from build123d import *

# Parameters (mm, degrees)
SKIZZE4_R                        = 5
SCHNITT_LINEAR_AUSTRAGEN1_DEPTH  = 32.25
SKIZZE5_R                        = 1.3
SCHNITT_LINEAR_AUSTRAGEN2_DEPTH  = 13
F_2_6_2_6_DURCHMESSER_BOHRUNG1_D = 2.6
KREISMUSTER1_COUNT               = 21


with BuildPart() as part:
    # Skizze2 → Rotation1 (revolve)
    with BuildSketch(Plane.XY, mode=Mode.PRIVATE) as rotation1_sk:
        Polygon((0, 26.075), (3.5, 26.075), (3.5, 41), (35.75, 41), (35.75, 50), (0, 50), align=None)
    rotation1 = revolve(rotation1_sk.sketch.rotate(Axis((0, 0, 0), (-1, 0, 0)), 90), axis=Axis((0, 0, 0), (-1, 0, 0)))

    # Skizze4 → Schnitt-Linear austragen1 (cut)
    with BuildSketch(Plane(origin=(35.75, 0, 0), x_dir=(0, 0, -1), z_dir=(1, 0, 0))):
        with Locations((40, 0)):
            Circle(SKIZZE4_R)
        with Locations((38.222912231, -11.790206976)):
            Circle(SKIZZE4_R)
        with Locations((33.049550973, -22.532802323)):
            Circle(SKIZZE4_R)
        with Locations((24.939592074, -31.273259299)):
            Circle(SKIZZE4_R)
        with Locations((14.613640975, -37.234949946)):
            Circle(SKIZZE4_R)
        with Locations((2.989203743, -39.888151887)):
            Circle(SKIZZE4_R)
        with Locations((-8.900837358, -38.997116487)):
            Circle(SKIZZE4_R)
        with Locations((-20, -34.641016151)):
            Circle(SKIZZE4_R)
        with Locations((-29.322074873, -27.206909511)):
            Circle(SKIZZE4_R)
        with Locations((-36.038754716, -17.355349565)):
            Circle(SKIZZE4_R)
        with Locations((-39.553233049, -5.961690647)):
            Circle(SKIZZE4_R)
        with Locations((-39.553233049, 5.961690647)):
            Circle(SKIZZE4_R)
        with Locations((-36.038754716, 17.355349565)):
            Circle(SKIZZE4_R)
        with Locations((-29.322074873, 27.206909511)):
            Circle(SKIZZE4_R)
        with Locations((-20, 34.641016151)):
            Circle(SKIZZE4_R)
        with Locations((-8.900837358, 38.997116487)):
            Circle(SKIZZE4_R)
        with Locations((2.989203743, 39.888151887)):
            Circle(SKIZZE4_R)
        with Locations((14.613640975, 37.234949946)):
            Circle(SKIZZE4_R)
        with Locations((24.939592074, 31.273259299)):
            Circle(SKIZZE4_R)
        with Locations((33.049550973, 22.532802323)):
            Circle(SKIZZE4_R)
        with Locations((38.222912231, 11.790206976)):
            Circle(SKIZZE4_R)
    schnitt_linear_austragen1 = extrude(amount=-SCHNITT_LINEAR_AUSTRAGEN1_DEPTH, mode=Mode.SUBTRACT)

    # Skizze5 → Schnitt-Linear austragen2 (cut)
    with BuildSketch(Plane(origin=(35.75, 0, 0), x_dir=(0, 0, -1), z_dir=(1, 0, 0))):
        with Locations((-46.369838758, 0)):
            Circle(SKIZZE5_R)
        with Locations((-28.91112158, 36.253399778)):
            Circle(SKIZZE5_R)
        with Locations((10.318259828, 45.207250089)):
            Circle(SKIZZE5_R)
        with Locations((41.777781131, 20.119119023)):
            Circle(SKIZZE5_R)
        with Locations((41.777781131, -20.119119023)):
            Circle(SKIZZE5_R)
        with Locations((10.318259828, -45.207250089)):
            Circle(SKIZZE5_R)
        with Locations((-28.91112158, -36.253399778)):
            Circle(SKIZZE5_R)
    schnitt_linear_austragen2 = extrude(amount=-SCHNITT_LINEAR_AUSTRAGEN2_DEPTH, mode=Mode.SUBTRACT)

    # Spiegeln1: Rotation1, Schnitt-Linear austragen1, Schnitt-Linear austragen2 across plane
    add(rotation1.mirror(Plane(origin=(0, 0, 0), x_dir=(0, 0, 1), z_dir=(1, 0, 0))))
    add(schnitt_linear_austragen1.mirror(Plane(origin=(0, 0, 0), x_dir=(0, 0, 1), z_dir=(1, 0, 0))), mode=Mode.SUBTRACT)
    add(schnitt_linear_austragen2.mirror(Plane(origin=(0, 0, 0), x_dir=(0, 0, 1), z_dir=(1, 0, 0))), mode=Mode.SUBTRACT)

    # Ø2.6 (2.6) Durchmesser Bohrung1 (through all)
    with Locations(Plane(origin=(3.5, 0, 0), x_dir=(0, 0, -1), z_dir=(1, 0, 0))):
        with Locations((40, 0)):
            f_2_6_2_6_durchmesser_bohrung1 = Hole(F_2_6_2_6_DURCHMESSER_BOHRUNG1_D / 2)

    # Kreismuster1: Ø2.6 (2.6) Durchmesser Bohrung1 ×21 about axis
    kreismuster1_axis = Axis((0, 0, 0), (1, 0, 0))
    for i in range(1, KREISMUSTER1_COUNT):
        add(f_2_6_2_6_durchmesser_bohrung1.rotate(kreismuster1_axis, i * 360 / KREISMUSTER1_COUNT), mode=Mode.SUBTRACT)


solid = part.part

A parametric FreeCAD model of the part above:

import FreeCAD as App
import Part
import Sketcher
Q = App.Units.Quantity

doc = App.newDocument("Part")
body = doc.addObject("PartDesign::Body", "Body")

# Sketch on XY plane
sketch1 = body.newObject("Sketcher::SketchObject", "Sketch")
sketch1.AttachmentSupport = (doc.getObject("XY_Plane"), [""])
sketch1.MapMode = "FlatFace"
sketch1.addGeometry(Part.LineSegment(App.Vector(0, 26.1, 0), App.Vector(3.5, 26.1, 0)), False)
sketch1.addGeometry(Part.LineSegment(App.Vector(3.5, 26.1, 0), App.Vector(3.5, 41, 0)), False)
sketch1.addGeometry(Part.LineSegment(App.Vector(3.5, 41, 0), App.Vector(35.8, 41, 0)), False)
sketch1.addGeometry(Part.LineSegment(App.Vector(35.8, 41, 0), App.Vector(35.8, 50, 0)), False)
sketch1.addGeometry(Part.LineSegment(App.Vector(35.8, 50, 0), App.Vector(0, 50, 0)), False)
sketch1.addGeometry(Part.LineSegment(App.Vector(0, 50, 0), App.Vector(0, 26.1, 0)), False)
sketch1.addConstraint(Sketcher.Constraint("Coincident", 0, 2, 1, 1))
sketch1.addConstraint(Sketcher.Constraint("Coincident", 1, 2, 2, 1))
sketch1.addConstraint(Sketcher.Constraint("Coincident", 2, 2, 3, 1))
sketch1.addConstraint(Sketcher.Constraint("Coincident", 3, 2, 4, 1))
sketch1.addConstraint(Sketcher.Constraint("Coincident", 4, 2, 5, 1))
sketch1.addConstraint(Sketcher.Constraint("Coincident", 5, 2, 0, 1))
sketch1.addConstraint(Sketcher.Constraint("Horizontal", 0))
sketch1.addConstraint(Sketcher.Constraint("Vertical", 1))
sketch1.addConstraint(Sketcher.Constraint("Horizontal", 2))
sketch1.addConstraint(Sketcher.Constraint("Vertical", 3))
sketch1.addConstraint(Sketcher.Constraint("Horizontal", 4))
sketch1.addConstraint(Sketcher.Constraint("Vertical", 5))
sketch1.addConstraint(Sketcher.Constraint("PointOnObject", 4, 2, -2))
sketch1.addConstraint(Sketcher.Constraint("DistanceY", 3, 1, 3, 2, Q("9 mm")))
sketch1.addConstraint(Sketcher.Constraint("DistanceX", 0, 1, 0, 2, Q("3.5 mm")))
sketch1.addConstraint(Sketcher.Constraint("DistanceY", -1, 1, 1, 2, Q("41 mm")))
sketch1.addConstraint(Sketcher.Constraint("DistanceX", 2, 1, 2, 2, Q("32.25 mm")))
sketch1.addConstraint(Sketcher.Constraint("DistanceY", 1, 1, 1, 2, Q("14.925 mm")))
revolution = body.newObject("PartDesign::Revolution", "Revolution")
revolution.Profile = sketch1
revolution.ReferenceAxis = (sketch1, ["H_Axis"])
revolution.Angle = 360

# Sketch on YZ plane
sketch2 = body.newObject("Sketcher::SketchObject", "Sketch001")
sketch2.AttachmentSupport = (doc.getObject("YZ_Plane"), [""])
sketch2.MapMode = "FlatFace"
sketch2.AttachmentOffset = App.Placement(App.Vector(0, 0, 35.75), App.Rotation())
sketch2.addGeometry(Part.Circle(App.Vector(0, -40, 0), App.Vector(0, 0, 1), 5), False)
sketch2.addGeometry(Part.Circle(App.Vector(-12, -38, 0), App.Vector(0, 0, 1), 5), False)
sketch2.addGeometry(Part.Circle(App.Vector(-23, -33, 0), App.Vector(0, 0, 1), 5), False)
sketch2.addGeometry(Part.Circle(App.Vector(-31, -25, 0), App.Vector(0, 0, 1), 5), False)
sketch2.addGeometry(Part.Circle(App.Vector(-37, -15, 0), App.Vector(0, 0, 1), 5), False)
sketch2.addGeometry(Part.Circle(App.Vector(-40, -3, 0), App.Vector(0, 0, 1), 5), False)
sketch2.addGeometry(Part.Circle(App.Vector(-39, 9, 0), App.Vector(0, 0, 1), 5), False)
sketch2.addGeometry(Part.Circle(App.Vector(-35, 20, 0), App.Vector(0, 0, 1), 5), False)
sketch2.addGeometry(Part.Circle(App.Vector(-27, 29, 0), App.Vector(0, 0, 1), 5), False)
sketch2.addGeometry(Part.Circle(App.Vector(-17, 36, 0), App.Vector(0, 0, 1), 5), False)
sketch2.addGeometry(Part.Circle(App.Vector(-6, 40, 0), App.Vector(0, 0, 1), 5), False)
sketch2.addGeometry(Part.Circle(App.Vector(6, 40, 0), App.Vector(0, 0, 1), 5), False)
sketch2.addGeometry(Part.Circle(App.Vector(17, 36, 0), App.Vector(0, 0, 1), 5), False)
sketch2.addGeometry(Part.Circle(App.Vector(27, 29, 0), App.Vector(0, 0, 1), 5), False)
sketch2.addGeometry(Part.Circle(App.Vector(35, 20, 0), App.Vector(0, 0, 1), 5), False)
sketch2.addGeometry(Part.Circle(App.Vector(39, 9, 0), App.Vector(0, 0, 1), 5), False)
sketch2.addGeometry(Part.Circle(App.Vector(40, -3, 0), App.Vector(0, 0, 1), 5), False)
sketch2.addGeometry(Part.Circle(App.Vector(37, -15, 0), App.Vector(0, 0, 1), 5), False)
sketch2.addGeometry(Part.Circle(App.Vector(31, -25, 0), App.Vector(0, 0, 1), 5), False)
sketch2.addGeometry(Part.Circle(App.Vector(23, -33, 0), App.Vector(0, 0, 1), 5), False)
sketch2.addGeometry(Part.Circle(App.Vector(12, -38, 0), App.Vector(0, 0, 1), 5), False)
sketch2.addConstraint(Sketcher.Constraint("Equal", 0, 1))
sketch2.addConstraint(Sketcher.Constraint("Equal", 1, 2))
sketch2.addConstraint(Sketcher.Constraint("Equal", 2, 3))
sketch2.addConstraint(Sketcher.Constraint("Equal", 3, 4))
sketch2.addConstraint(Sketcher.Constraint("Equal", 4, 5))
sketch2.addConstraint(Sketcher.Constraint("Equal", 5, 6))
sketch2.addConstraint(Sketcher.Constraint("Equal", 6, 7))
sketch2.addConstraint(Sketcher.Constraint("Equal", 7, 8))
sketch2.addConstraint(Sketcher.Constraint("Equal", 8, 9))
sketch2.addConstraint(Sketcher.Constraint("Equal", 9, 10))
sketch2.addConstraint(Sketcher.Constraint("Equal", 10, 11))
sketch2.addConstraint(Sketcher.Constraint("Equal", 11, 12))
sketch2.addConstraint(Sketcher.Constraint("Equal", 12, 13))
sketch2.addConstraint(Sketcher.Constraint("Equal", 13, 14))
sketch2.addConstraint(Sketcher.Constraint("Equal", 14, 15))
sketch2.addConstraint(Sketcher.Constraint("Equal", 15, 16))
sketch2.addConstraint(Sketcher.Constraint("Equal", 16, 17))
sketch2.addConstraint(Sketcher.Constraint("Equal", 17, 18))
sketch2.addConstraint(Sketcher.Constraint("Equal", 18, 19))
sketch2.addConstraint(Sketcher.Constraint("Equal", 19, 20))
sketch2.addConstraint(Sketcher.Constraint("Symmetric", 10, 3, 11, 3, -2))
sketch2.addConstraint(Sketcher.Constraint("Symmetric", 9, 3, 12, 3, -2))
sketch2.addConstraint(Sketcher.Constraint("Symmetric", 8, 3, 13, 3, -2))
sketch2.addConstraint(Sketcher.Constraint("Symmetric", 7, 3, 14, 3, -2))
sketch2.addConstraint(Sketcher.Constraint("Symmetric", 6, 3, 15, 3, -2))
sketch2.addConstraint(Sketcher.Constraint("Symmetric", 5, 3, 16, 3, -2))
sketch2.addConstraint(Sketcher.Constraint("Symmetric", 4, 3, 17, 3, -2))
sketch2.addConstraint(Sketcher.Constraint("Symmetric", 3, 3, 18, 3, -2))
sketch2.addConstraint(Sketcher.Constraint("Symmetric", 2, 3, 19, 3, -2))
sketch2.addConstraint(Sketcher.Constraint("Symmetric", 1, 3, 20, 3, -2))
sketch2.addConstraint(Sketcher.Constraint("PointOnObject", 0, 3, -2))
sketch2.addConstraint(Sketcher.Constraint("Diameter", 0, Q("10 mm")))
sketch2.addConstraint(Sketcher.Constraint("DistanceY", 0, 3, -1, 1, Q("40 mm")))
sketch2.addConstraint(Sketcher.Constraint("DistanceY", -1, 1, 7, 3, Q("20 mm")))
sketch2.addConstraint(Sketcher.Constraint("DistanceX", 5, 3, 4, 3, Q("2.653202 mm")))
sketch2.addConstraint(Sketcher.Constraint("DistanceX", 6, 3, 7, 3, Q("4.3561 mm")))
sketch2.addConstraint(Sketcher.Constraint("DistanceX", 4, 3, 9, 3, Q("19.8796 mm")))
sketch2.addConstraint(Sketcher.Constraint("DistanceX", 8, 3, 11, 3, Q("33.1686 mm")))
sketch2.addConstraint(Sketcher.Constraint("DistanceX", 9, 3, 12, 3, Q("34.710699 mm")))
sketch2.addConstraint(Sketcher.Constraint("DistanceY", 2, 3, -1, 1, Q("33.049551 mm")))
sketch2.addConstraint(Sketcher.Constraint("DistanceX", 3, 3, -1, 1, Q("31.273259 mm")))
sketch2.addConstraint(Sketcher.Constraint("DistanceY", 4, 3, -1, 1, Q("14.613641 mm")))
sketch2.addConstraint(Sketcher.Constraint("DistanceX", 8, 3, -1, 1, Q("27.20691 mm")))
sketch2.addConstraint(Sketcher.Constraint("DistanceY", 1, 3, 2, 3, Q("5.173361 mm")))
sketch2.addConstraint(Sketcher.Constraint("DistanceY", 2, 3, 3, 3, Q("8.109959 mm")))
sketch2.addConstraint(Sketcher.Constraint("DistanceY", 3, 3, 5, 3, Q("21.950388 mm")))
sketch2.addConstraint(Sketcher.Constraint("DistanceX", 5, 3, 2, 3, Q("17.35535 mm")))
sketch2.addConstraint(Sketcher.Constraint("DistanceY", 5, 3, 6, 3, Q("11.890041 mm")))
sketch2.addConstraint(Sketcher.Constraint("DistanceX", 6, 3, 1, 3, Q("27.20691 mm")))
sketch2.addConstraint(Sketcher.Constraint("DistanceY", 5, 3, 8, 3, Q("32.311279 mm")))
sketch2.addConstraint(Sketcher.Constraint("DistanceY", 8, 3, 9, 3, Q("6.71668 mm")))
sketch2.addConstraint(Sketcher.Constraint("DistanceY", 9, 3, 10, 3, Q("3.514478 mm")))
sketch2.addConstraint(Sketcher.Constraint("DistanceX", 1, 3, 19, 3, Q("34.323009 mm")))
pocket1 = body.newObject("PartDesign::Pocket", "Pocket")
pocket1.Profile = sketch2
pocket1.Length = 32.25

# Sketch on YZ plane
sketch3 = body.newObject("Sketcher::SketchObject", "Sketch002")
sketch3.AttachmentSupport = (doc.getObject("YZ_Plane"), [""])
sketch3.MapMode = "FlatFace"
sketch3.AttachmentOffset = App.Placement(App.Vector(0, 0, 35.75), App.Rotation())
sketch3.addGeometry(Part.Circle(App.Vector(0, 46.4, 0), App.Vector(0, 0, 1), 1.3), False)
sketch3.addGeometry(Part.Circle(App.Vector(36.3, 28.9, 0), App.Vector(0, 0, 1), 1.3), False)
sketch3.addGeometry(Part.Circle(App.Vector(45.2, -10.3, 0), App.Vector(0, 0, 1), 1.3), False)
sketch3.addGeometry(Part.Circle(App.Vector(20.1, -41.8, 0), App.Vector(0, 0, 1), 1.3), False)
sketch3.addGeometry(Part.Circle(App.Vector(-20.1, -41.8, 0), App.Vector(0, 0, 1), 1.3), False)
sketch3.addGeometry(Part.Circle(App.Vector(-45.2, -10.3, 0), App.Vector(0, 0, 1), 1.3), False)
sketch3.addGeometry(Part.Circle(App.Vector(-36.3, 28.9, 0), App.Vector(0, 0, 1), 1.3), False)
sketch3.addConstraint(Sketcher.Constraint("Equal", 0, 1))
sketch3.addConstraint(Sketcher.Constraint("Equal", 1, 2))
sketch3.addConstraint(Sketcher.Constraint("Equal", 2, 3))
sketch3.addConstraint(Sketcher.Constraint("Equal", 3, 4))
sketch3.addConstraint(Sketcher.Constraint("Equal", 4, 5))
sketch3.addConstraint(Sketcher.Constraint("Equal", 5, 6))
sketch3.addConstraint(Sketcher.Constraint("Symmetric", 3, 3, 4, 3, -2))
sketch3.addConstraint(Sketcher.Constraint("Symmetric", 2, 3, 5, 3, -2))
sketch3.addConstraint(Sketcher.Constraint("Symmetric", 1, 3, 6, 3, -2))
sketch3.addConstraint(Sketcher.Constraint("PointOnObject", 0, 3, -2))
sketch3.addConstraint(Sketcher.Constraint("Diameter", 0, Q("2.6 mm")))
sketch3.addConstraint(Sketcher.Constraint("DistanceX", -1, 1, 1, 3, Q("36.2534 mm")))
sketch3.addConstraint(Sketcher.Constraint("DistanceY", 2, 3, 0, 3, Q("56.688099 mm")))
sketch3.addConstraint(Sketcher.Constraint("DistanceX", 5, 3, 2, 3, Q("90.4145 mm")))
sketch3.addConstraint(Sketcher.Constraint("DistanceY", -1, 1, 0, 3, Q("46.369839 mm")))
sketch3.addConstraint(Sketcher.Constraint("DistanceY", -1, 1, 1, 3, Q("28.911122 mm")))
sketch3.addConstraint(Sketcher.Constraint("DistanceX", -1, 1, 3, 3, Q("20.119119 mm")))
sketch3.addConstraint(Sketcher.Constraint("DistanceY", 3, 3, -1, 1, Q("41.777781 mm")))
pocket2 = body.newObject("PartDesign::Pocket", "Pocket001")
pocket2.Profile = sketch3
pocket2.Length = 13
doc.recompute()

mirrored = body.newObject("PartDesign::Mirrored", "Mirrored")
mirrored.Originals = [revolution, pocket1, pocket2]
mirrored.MirrorPlane = (doc.getObject("YZ_Plane"), [""])
body.Tip = mirrored

# Sketch on YZ plane
sketch4 = body.newObject("Sketcher::SketchObject", "Sketch003")
sketch4.AttachmentSupport = (doc.getObject("YZ_Plane"), [""])
sketch4.MapMode = "FlatFace"
sketch4.AttachmentOffset = App.Placement(App.Vector(0, 0, 3.5), App.Rotation())
sketch4.addGeometry(Part.Circle(App.Vector(0, -40, 0), App.Vector(0, 0, 1), 1.3), False)
sketch4.addConstraint(Sketcher.Constraint("PointOnObject", 0, 3, -2))
sketch4.addConstraint(Sketcher.Constraint("Diameter", 0, Q("2.6 mm")))
sketch4.addConstraint(Sketcher.Constraint("DistanceY", 0, 3, -1, 1, Q("40 mm")))
doc.recompute()
hole = body.newObject("PartDesign::Hole", "Hole")
hole.Profile = sketch4
hole.ThreadType = "None"
hole.Diameter = 2.6
hole.DepthType = "ThroughAll"
doc.recompute()

polarpattern = body.newObject("PartDesign::PolarPattern", "PolarPattern")
polarpattern.Originals = [hole]
polarpattern.Axis = (doc.getObject("X_Axis"), [""])
polarpattern.Angle = 360
polarpattern.Occurrences = 21
body.Tip = polarpattern

doc.recompute()
